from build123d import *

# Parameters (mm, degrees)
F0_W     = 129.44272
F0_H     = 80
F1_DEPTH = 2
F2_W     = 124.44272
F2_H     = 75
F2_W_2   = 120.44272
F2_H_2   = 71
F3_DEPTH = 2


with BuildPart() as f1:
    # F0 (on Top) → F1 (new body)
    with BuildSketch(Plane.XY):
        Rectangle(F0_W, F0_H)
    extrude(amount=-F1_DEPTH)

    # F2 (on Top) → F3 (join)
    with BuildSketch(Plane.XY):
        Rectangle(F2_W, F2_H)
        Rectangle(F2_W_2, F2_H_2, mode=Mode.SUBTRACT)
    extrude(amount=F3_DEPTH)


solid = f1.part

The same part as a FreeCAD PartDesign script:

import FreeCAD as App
import Part
import Sketcher
Q = App.Units.Quantity


def add_polygon(sketch, points):
    """Adds a closed chain of lines whose ends are joined by coincident constraints."""
    first, n = sketch.GeometryCount, len(points)
    for a, b in zip(points, points[1:] + points[:1]):
        sketch.addGeometry(Part.LineSegment(App.Vector(*a, 0), App.Vector(*b, 0)), False)
    for i in range(n):
        sketch.addConstraint(Sketcher.Constraint("Coincident", first + i, 2, first + (i + 1) % n, 1))

doc = App.newDocument("Part")
body = doc.addObject("PartDesign::Body", "Body")

# Sketch on XY plane
sketch1 = doc.addObject("Sketcher::SketchObject", "Sketch")
body.addObject(sketch1)
sketch1.AttachmentSupport = (doc.XY_Plane, [""])
sketch1.MapMode = "FlatFace"
add_polygon(sketch1, [(-65, 40), (-65, -40), (65, -40), (65, 40)])  # lines 0-3
sketch1.addConstraint(Sketcher.Constraint("Vertical", 0))
sketch1.addConstraint(Sketcher.Constraint("Horizontal", 1))
sketch1.addConstraint(Sketcher.Constraint("Vertical", 2))
sketch1.addConstraint(Sketcher.Constraint("Horizontal", 3))
sketch1.addConstraint(Sketcher.Constraint("Symmetric", 0, 2, 2, 2, -1, 1))
sketch1.addConstraint(Sketcher.Constraint("DistanceY", 0, 2, 0, 1, Q("80 mm")))
sketch1.addConstraint(Sketcher.Constraint("DistanceX", 1, 1, 1, 2, Q("129.44272 mm")))
pad1 = doc.addObject("PartDesign::Pad", "Pad")
body.addObject(pad1)
pad1.Profile = sketch1
pad1.Length = 2
pad1.Reversed = True

# Sketch on XY plane
sketch2 = doc.addObject("Sketcher::SketchObject", "Sketch001")
body.addObject(sketch2)
sketch2.AttachmentSupport = (doc.XY_Plane, [""])
sketch2.MapMode = "FlatFace"
add_polygon(sketch2, [(-62, 38), (-62, -38), (62, -38), (62, 38)])  # lines 0-3
add_polygon(sketch2, [(60, -36), (-60, -36), (-60, 36), (60, 36)])  # lines 4-7
sketch2.addConstraint(Sketcher.Constraint("Vertical", 0))
sketch2.addConstraint(Sketcher.Constraint("Horizontal", 1))
sketch2.addConstraint(Sketcher.Constraint("Vertical", 2))
sketch2.addConstraint(Sketcher.Constraint("Horizontal", 3))
sketch2.addConstraint(Sketcher.Constraint("Horizontal", 4))
sketch2.addConstraint(Sketcher.Constraint("Vertical", 5))
sketch2.addConstraint(Sketcher.Constraint("Horizontal", 6))
sketch2.addConstraint(Sketcher.Constraint("Vertical", 7))
sketch2.addConstraint(Sketcher.Constraint("Symmetric", 0, 2, 2, 2, -1, 1))
sketch2.addConstraint(Sketcher.Constraint("Symmetric", 4, 2, 6, 2, -1, 1))
sketch2.addConstraint(Sketcher.Constraint("DistanceY", 0, 2, 0, 1, Q("75 mm")))
sketch2.addConstraint(Sketcher.Constraint("DistanceY", 5, 1, 5, 2, Q("71 mm")))
sketch2.addConstraint(Sketcher.Constraint("DistanceX", 0, 2, 4, 2, Q("2 mm")))
sketch2.addConstraint(Sketcher.Constraint("DistanceX", 1, 1, 1, 2, Q("124.44272 mm")))
pad2 = doc.addObject("PartDesign::Pad", "Pad001")
body.addObject(pad2)
pad2.Profile = sketch2
pad2.Length = 2

doc.recompute()
